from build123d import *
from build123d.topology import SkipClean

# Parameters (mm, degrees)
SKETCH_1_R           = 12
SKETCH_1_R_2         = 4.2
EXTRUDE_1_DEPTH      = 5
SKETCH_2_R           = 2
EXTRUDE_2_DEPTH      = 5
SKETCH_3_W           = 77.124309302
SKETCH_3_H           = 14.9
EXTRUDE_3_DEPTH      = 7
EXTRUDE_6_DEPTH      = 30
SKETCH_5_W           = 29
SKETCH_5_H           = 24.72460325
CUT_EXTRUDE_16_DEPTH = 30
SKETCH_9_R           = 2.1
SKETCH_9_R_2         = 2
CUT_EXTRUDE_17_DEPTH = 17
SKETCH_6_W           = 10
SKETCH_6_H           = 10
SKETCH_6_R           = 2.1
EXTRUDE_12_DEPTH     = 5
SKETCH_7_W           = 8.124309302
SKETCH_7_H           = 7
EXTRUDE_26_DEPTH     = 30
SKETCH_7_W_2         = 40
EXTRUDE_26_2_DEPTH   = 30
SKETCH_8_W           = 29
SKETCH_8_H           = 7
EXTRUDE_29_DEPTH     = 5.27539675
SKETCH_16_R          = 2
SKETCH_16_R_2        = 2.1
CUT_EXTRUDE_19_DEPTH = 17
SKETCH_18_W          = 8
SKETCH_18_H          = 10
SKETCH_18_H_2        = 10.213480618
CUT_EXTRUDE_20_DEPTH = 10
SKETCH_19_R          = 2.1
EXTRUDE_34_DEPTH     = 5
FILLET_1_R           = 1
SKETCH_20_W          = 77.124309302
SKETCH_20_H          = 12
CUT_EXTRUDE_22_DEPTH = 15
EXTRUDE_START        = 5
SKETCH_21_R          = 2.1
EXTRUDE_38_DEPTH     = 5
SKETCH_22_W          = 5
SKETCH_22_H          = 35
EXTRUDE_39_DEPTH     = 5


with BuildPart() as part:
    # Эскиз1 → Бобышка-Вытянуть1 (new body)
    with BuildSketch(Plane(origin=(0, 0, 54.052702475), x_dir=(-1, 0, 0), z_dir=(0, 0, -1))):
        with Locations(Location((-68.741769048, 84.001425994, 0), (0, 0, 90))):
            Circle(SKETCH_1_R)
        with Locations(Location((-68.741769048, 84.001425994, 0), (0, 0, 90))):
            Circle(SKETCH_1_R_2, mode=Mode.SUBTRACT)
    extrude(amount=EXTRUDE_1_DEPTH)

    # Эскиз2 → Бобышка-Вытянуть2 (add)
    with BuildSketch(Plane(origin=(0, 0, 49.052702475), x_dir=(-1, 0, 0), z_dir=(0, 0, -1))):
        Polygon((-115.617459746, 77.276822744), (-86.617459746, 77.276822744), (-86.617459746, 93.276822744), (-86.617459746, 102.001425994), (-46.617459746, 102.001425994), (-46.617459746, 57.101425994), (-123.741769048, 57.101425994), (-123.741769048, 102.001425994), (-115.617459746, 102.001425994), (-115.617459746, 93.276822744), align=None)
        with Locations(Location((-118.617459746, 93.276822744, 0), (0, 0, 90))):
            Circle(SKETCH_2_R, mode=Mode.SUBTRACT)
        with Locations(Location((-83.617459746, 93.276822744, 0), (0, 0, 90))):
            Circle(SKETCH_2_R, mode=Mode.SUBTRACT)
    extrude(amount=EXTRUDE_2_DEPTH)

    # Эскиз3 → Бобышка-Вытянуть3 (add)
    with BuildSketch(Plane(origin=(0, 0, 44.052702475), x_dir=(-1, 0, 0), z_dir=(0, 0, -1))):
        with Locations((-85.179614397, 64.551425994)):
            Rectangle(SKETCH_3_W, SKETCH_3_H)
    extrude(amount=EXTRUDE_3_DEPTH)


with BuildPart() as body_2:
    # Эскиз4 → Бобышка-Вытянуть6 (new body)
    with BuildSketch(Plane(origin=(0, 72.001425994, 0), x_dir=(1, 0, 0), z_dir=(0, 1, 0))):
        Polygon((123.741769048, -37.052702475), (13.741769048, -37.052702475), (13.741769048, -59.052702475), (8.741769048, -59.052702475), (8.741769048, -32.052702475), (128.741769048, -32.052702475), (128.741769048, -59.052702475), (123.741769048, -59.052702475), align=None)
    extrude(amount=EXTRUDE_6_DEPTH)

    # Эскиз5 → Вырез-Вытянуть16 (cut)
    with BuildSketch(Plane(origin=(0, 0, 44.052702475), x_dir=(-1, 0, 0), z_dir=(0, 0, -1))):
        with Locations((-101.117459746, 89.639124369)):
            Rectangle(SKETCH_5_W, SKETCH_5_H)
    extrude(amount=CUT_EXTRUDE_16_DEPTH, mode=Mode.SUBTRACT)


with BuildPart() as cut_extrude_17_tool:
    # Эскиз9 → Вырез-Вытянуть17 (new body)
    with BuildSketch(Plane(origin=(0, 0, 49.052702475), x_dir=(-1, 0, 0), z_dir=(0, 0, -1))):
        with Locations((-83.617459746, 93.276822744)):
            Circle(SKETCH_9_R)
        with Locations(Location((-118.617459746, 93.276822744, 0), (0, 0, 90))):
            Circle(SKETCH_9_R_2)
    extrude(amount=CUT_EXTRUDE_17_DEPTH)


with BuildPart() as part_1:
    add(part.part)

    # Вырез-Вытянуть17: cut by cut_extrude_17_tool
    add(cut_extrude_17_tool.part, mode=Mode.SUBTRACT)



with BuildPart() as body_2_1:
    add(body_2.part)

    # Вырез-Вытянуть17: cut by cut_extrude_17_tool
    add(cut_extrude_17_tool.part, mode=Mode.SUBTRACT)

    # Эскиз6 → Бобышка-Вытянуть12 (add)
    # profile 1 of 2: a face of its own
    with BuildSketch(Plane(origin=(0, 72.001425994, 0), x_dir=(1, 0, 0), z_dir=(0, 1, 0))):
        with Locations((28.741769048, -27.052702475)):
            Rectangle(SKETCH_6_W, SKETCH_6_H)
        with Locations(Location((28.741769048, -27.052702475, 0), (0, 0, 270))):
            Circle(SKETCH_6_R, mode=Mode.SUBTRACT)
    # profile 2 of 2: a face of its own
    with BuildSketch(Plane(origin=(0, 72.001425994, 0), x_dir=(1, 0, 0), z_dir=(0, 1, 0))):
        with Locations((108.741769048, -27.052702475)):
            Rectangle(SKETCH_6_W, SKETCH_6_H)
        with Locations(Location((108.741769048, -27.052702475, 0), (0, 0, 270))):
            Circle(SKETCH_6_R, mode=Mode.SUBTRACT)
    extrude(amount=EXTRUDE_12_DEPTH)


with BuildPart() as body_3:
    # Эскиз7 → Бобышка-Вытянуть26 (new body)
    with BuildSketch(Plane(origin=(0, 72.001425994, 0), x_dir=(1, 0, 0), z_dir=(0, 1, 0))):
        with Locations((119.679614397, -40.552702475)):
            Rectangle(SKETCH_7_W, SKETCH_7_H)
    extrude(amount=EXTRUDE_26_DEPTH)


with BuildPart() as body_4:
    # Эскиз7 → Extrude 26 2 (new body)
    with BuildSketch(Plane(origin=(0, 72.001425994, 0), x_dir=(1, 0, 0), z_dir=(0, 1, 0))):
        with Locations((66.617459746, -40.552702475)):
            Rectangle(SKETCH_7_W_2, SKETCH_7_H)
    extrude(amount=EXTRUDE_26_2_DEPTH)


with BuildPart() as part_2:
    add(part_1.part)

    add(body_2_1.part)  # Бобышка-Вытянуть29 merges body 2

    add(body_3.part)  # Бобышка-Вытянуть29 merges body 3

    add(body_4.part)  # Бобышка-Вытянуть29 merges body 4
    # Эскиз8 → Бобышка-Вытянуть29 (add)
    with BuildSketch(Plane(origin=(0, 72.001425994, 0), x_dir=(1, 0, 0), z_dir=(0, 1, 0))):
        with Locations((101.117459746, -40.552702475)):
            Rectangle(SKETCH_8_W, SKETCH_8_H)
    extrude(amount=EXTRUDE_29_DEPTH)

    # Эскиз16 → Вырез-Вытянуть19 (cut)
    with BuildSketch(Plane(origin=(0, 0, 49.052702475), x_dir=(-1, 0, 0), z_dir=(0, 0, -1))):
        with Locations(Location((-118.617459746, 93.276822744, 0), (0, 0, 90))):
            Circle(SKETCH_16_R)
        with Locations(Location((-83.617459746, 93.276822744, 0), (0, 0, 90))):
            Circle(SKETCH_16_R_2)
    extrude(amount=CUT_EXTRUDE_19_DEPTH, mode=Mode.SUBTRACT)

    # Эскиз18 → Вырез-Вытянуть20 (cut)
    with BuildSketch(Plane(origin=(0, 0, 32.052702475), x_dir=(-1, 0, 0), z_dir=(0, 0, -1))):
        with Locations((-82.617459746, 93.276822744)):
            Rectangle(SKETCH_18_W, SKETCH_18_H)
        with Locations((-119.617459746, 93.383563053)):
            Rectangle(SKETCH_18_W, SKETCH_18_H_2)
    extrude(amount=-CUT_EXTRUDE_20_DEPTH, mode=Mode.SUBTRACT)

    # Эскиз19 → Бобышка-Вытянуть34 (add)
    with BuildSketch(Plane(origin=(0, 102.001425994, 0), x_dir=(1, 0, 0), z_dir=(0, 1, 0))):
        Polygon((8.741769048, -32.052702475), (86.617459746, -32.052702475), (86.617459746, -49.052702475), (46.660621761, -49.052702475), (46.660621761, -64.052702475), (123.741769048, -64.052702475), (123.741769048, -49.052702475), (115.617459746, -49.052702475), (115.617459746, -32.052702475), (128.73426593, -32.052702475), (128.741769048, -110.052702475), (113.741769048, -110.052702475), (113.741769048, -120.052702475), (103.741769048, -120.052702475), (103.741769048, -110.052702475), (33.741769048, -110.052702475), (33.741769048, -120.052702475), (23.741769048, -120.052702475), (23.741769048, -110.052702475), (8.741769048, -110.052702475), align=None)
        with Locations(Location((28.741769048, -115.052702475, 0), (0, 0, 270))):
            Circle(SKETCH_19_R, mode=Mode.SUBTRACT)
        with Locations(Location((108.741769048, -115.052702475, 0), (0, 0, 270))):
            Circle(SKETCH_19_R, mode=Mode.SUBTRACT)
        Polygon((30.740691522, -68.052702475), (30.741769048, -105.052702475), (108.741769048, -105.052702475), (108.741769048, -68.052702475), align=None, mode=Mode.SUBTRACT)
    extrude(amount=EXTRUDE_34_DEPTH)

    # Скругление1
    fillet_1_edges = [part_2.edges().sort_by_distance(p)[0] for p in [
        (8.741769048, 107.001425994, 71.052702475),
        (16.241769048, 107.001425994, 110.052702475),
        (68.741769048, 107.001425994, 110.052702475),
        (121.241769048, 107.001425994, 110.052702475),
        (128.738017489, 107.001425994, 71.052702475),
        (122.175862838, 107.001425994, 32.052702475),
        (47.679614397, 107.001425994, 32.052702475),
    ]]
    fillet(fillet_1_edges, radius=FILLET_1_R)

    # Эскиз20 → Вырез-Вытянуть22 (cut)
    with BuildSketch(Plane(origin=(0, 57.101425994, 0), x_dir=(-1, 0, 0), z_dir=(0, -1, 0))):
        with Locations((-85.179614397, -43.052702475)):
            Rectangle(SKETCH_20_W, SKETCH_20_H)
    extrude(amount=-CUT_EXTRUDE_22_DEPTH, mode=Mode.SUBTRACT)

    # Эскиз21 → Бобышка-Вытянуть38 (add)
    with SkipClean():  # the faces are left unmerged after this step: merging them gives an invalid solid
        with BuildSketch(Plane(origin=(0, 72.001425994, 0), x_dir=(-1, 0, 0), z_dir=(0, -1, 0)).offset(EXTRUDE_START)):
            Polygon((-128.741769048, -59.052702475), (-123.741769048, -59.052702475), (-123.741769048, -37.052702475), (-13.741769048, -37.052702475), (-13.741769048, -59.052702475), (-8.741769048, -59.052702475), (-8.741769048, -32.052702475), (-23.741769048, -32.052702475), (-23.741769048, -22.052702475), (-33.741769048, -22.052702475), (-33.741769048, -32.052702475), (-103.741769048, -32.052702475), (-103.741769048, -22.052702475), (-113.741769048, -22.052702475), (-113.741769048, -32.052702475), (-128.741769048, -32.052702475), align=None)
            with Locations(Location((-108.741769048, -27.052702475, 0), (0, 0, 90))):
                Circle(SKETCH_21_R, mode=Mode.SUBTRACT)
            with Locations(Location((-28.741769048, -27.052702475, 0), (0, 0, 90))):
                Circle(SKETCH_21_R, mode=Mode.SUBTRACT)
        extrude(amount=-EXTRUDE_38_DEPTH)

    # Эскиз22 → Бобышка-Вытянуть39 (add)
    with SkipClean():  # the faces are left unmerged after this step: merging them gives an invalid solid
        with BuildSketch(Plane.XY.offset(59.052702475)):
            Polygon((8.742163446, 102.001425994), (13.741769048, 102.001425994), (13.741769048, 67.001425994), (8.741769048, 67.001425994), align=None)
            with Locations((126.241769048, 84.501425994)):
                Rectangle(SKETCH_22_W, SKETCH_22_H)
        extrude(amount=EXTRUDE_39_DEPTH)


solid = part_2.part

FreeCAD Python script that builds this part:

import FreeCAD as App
import Part
import Sketcher
from FreeCAD import Vector


def edges_at(feature, points):
    """Names of the edges that pass closest to the given points."""
    edges = feature.Shape.Edges
    near = lambda p: min(range(len(edges)), key=lambda i: edges[i].distToShape(Part.Vertex(*p))[0])
    return sorted({f"Edge{near(p) + 1}" for p in points})

doc = App.newDocument("Part")
body = doc.addObject("PartDesign::Body", "Body")

# Sketch on XY plane
sketch1 = doc.addObject("Sketcher::SketchObject", "Sketch")
body.addObject(sketch1)
sketch1.AttachmentSupport = (doc.XY_Plane, [""])
sketch1.MapMode = "FlatFace"
sketch1.AttachmentOffset = App.Placement(Vector(0, 0, 54.052702), App.Rotation())
sketch1.addGeometry(Part.Circle(Vector(68.7, 84, 0), Vector(0, 0, 1), 12), False)
sketch1.addGeometry(Part.Circle(Vector(68.7, 84, 0), Vector(0, 0, 1), 4.2), False)
sketch1.addConstraint(Sketcher.Constraint("Coincident", 1, 3, 0, 3))
sketch1.addConstraint(Sketcher.Constraint("Diameter", 0, 24.0))
sketch1.addConstraint(Sketcher.Constraint("Diameter", 1, 8.4))
sketch1.addConstraint(Sketcher.Constraint("DistanceX", -1, 1, 0, 3, 68.741769))
sketch1.addConstraint(Sketcher.Constraint("DistanceY", -1, 1, 0, 3, 84.001426))
pad1 = doc.addObject("PartDesign::Pad", "Pad")
body.addObject(pad1)
pad1.Profile = sketch1
pad1.Length = 5
pad1.Reversed = True

# Sketch on XY plane
sketch2 = doc.addObject("Sketcher::SketchObject", "Sketch001")
body.addObject(sketch2)
sketch2.AttachmentSupport = (doc.XY_Plane, [""])
sketch2.MapMode = "FlatFace"
sketch2.AttachmentOffset = App.Placement(Vector(0, 0, 49.052702), App.Rotation())
sketch2.addGeometry(Part.LineSegment(Vector(86.6, 77.3, 0), Vector(115.6, 77.3, 0)), False)
sketch2.addGeometry(Part.LineSegment(Vector(115.6, 77.3, 0), Vector(115.6, 102, 0)), False)
sketch2.addGeometry(Part.LineSegment(Vector(115.6, 102, 0), Vector(123.7, 102, 0)), False)
sketch2.addGeometry(Part.LineSegment(Vector(123.7, 102, 0), Vector(123.7, 57.1, 0)), False)
sketch2.addGeometry(Part.LineSegment(Vector(123.7, 57.1, 0), Vector(46.6, 57.1, 0)), False)
sketch2.addGeometry(Part.LineSegment(Vector(46.6, 57.1, 0), Vector(46.6, 102, 0)), False)
sketch2.addGeometry(Part.LineSegment(Vector(46.6, 102, 0), Vector(86.6, 102, 0)), False)
sketch2.addGeometry(Part.LineSegment(Vector(86.6, 102, 0), Vector(86.6, 77.3, 0)), False)
sketch2.addGeometry(Part.Circle(Vector(83.6, 93.3, 0), Vector(0, 0, 1), 2), False)
sketch2.addGeometry(Part.Circle(Vector(118.6, 93.3, 0), Vector(0, 0, 1), 2), False)
sketch2.addConstraint(Sketcher.Constraint("Coincident", 0, 2, 1, 1))
sketch2.addConstraint(Sketcher.Constraint("Coincident", 1, 2, 2, 1))
sketch2.addConstraint(Sketcher.Constraint("Coincident", 2, 2, 3, 1))
sketch2.addConstraint(Sketcher.Constraint("Coincident", 3, 2, 4, 1))
sketch2.addConstraint(Sketcher.Constraint("Coincident", 4, 2, 5, 1))
sketch2.addConstraint(Sketcher.Constraint("Coincident", 5, 2, 6, 1))
sketch2.addConstraint(Sketcher.Constraint("Coincident", 6, 2, 7, 1))
sketch2.addConstraint(Sketcher.Constraint("Coincident", 7, 2, 0, 1))
sketch2.addConstraint(Sketcher.Constraint("Horizontal", 0))
sketch2.addConstraint(Sketcher.Constraint("Vertical", 1))
sketch2.addConstraint(Sketcher.Constraint("Horizontal", 2))
sketch2.addConstraint(Sketcher.Constraint("Vertical", 3))
sketch2.addConstraint(Sketcher.Constraint("Horizontal", 4))
sketch2.addConstraint(Sketcher.Constraint("Vertical", 5))
sketch2.addConstraint(Sketcher.Constraint("Horizontal", 6))
sketch2.addConstraint(Sketcher.Constraint("Vertical", 7))
sketch2.addConstraint(Sketcher.Constraint("Equal", 8, 9))
sketch2.addConstraint(Sketcher.Constraint("Horizontal", 8, 3, 9, 3))
sketch2.addConstraint(Sketcher.Constraint("Horizontal", 2, 2, 5, 2))
sketch2.addConstraint(Sketcher.Constraint("Diameter", 8, 4.0))
sketch2.addConstraint(Sketcher.Constraint("DistanceX", 0, 1, 0, 2, 29.0))
sketch2.addConstraint(Sketcher.Constraint("DistanceX", 6, 1, 6, 2, 40.0))
sketch2.addConstraint(Sketcher.Constraint("DistanceY", 3, 2, 3, 1, 44.9))
sketch2.addConstraint(Sketcher.Constraint("DistanceX", 8, 3, 9, 3, 35.0))
sketch2.addConstraint(Sketcher.Constraint("DistanceX", 0, 2, 9, 3, 3.0))
sketch2.addConstraint(Sketcher.Constraint("DistanceY", 0, 2, 9, 3, 16.0))
sketch2.addConstraint(Sketcher.Constraint("DistanceX", 2, 1, 2, 2, 8.124309))
sketch2.addConstraint(Sketcher.Constraint("DistanceY", 1, 1, 1, 2, 24.724603))
sketch2.addConstraint(Sketcher.Constraint("DistanceX", -1, 1, 8, 3, 83.61746))
sketch2.addConstraint(Sketcher.Constraint("DistanceY", -1, 1, 8, 3, 93.276823))
pad2 = doc.addObject("PartDesign::Pad", "Pad001")
body.addObject(pad2)
pad2.Profile = sketch2
pad2.Length = 5
pad2.Reversed = True

# Sketch on XY plane
sketch3 = doc.addObject("Sketcher::SketchObject", "Sketch002")
body.addObject(sketch3)
sketch3.AttachmentSupport = (doc.XY_Plane, [""])
sketch3.MapMode = "FlatFace"
sketch3.AttachmentOffset = App.Placement(Vector(0, 0, 44.052702), App.Rotation())
sketch3.addGeometry(Part.LineSegment(Vector(124, 72, 0), Vector(124, 57, 0)), False)
sketch3.addGeometry(Part.LineSegment(Vector(124, 57, 0), Vector(47, 57, 0)), False)
sketch3.addGeometry(Part.LineSegment(Vector(47, 57, 0), Vector(47, 72, 0)), False)
sketch3.addGeometry(Part.LineSegment(Vector(47, 72, 0), Vector(124, 72, 0)), False)
sketch3.addConstraint(Sketcher.Constraint("Coincident", 0, 2, 1, 1))
sketch3.addConstraint(Sketcher.Constraint("Coincident", 1, 2, 2, 1))
sketch3.addConstraint(Sketcher.Constraint("Coincident", 2, 2, 3, 1))
sketch3.addConstraint(Sketcher.Constraint("Coincident", 3, 2, 0, 1))
sketch3.addConstraint(Sketcher.Constraint("Vertical", 0))
sketch3.addConstraint(Sketcher.Constraint("Horizontal", 1))
sketch3.addConstraint(Sketcher.Constraint("Vertical", 2))
sketch3.addConstraint(Sketcher.Constraint("Horizontal", 3))
sketch3.addConstraint(Sketcher.Constraint("DistanceY", 0, 2, 0, 1, 14.9))
sketch3.addConstraint(Sketcher.Constraint("DistanceX", 1, 2, 1, 1, 77.124309))
sketch3.addConstraint(Sketcher.Constraint("DistanceX", -1, 1, 0, 2, 123.741769))
sketch3.addConstraint(Sketcher.Constraint("DistanceY", -1, 1, 0, 2, 57.101426))
pad3 = doc.addObject("PartDesign::Pad", "Pad002")
body.addObject(pad3)
pad3.Profile = sketch3
pad3.Length = 7
pad3.Reversed = True
body2 = doc.addObject("PartDesign::Body", "Body001")

# Sketch on XZ plane
sketch4 = doc.addObject("Sketcher::SketchObject", "Sketch003")
body2.addObject(sketch4)
sketch4.AttachmentSupport = (doc.getObject("XZ_Plane001"), [""])
sketch4.MapMode = "FlatFace"
sketch4.AttachmentOffset = App.Placement(Vector(0, 0, -72.001426), App.Rotation())
sketch4.addGeometry(Part.LineSegment(Vector(14, 37, 0), Vector(124, 37, 0)), False)
sketch4.addGeometry(Part.LineSegment(Vector(124, 37, 0), Vector(124, 59, 0)), False)
sketch4.addGeometry(Part.LineSegment(Vector(124, 59, 0), Vector(129, 59, 0)), False)
sketch4.addGeometry(Part.LineSegment(Vector(129, 59, 0), Vector(129, 32, 0)), False)
sketch4.addGeometry(Part.LineSegment(Vector(129, 32, 0), Vector(9, 32, 0)), False)
sketch4.addGeometry(Part.LineSegment(Vector(9, 32, 0), Vector(9, 59, 0)), False)
sketch4.addGeometry(Part.LineSegment(Vector(9, 59, 0), Vector(14, 59, 0)), False)
sketch4.addGeometry(Part.LineSegment(Vector(14, 59, 0), Vector(14, 37, 0)), False)
sketch4.addConstraint(Sketcher.Constraint("Coincident", 0, 2, 1, 1))
sketch4.addConstraint(Sketcher.Constraint("Coincident", 1, 2, 2, 1))
sketch4.addConstraint(Sketcher.Constraint("Coincident", 2, 2, 3, 1))
sketch4.addConstraint(Sketcher.Constraint("Coincident", 3, 2, 4, 1))
sketch4.addConstraint(Sketcher.Constraint("Coincident", 4, 2, 5, 1))
sketch4.addConstraint(Sketcher.Constraint("Coincident", 5, 2, 6, 1))
sketch4.addConstraint(Sketcher.Constraint("Coincident", 6, 2, 7, 1))
sketch4.addConstraint(Sketcher.Constraint("Coincident", 7, 2, 0, 1))
sketch4.addConstraint(Sketcher.Constraint("Horizontal", 0))
sketch4.addConstraint(Sketcher.Constraint("Vertical", 1))
sketch4.addConstraint(Sketcher.Constraint("Horizontal", 2))
sketch4.addConstraint(Sketcher.Constraint("Vertical", 3))
sketch4.addConstraint(Sketcher.Constraint("Horizontal", 4))
sketch4.addConstraint(Sketcher.Constraint("Vertical", 5))
sketch4.addConstraint(Sketcher.Constraint("Horizontal", 6))
sketch4.addConstraint(Sketcher.Constraint("Vertical", 7))
sketch4.addConstraint(Sketcher.Constraint("Horizontal", 2, 2, 5, 2))
sketch4.addConstraint(Sketcher.Constraint("Equal", 2, 6))
sketch4.addConstraint(Sketcher.Constraint("DistanceX", 0, 1, 0, 2, 110.0))
sketch4.addConstraint(Sketcher.Constraint("DistanceX", 2, 1, 2, 2, 5.0))
sketch4.addConstraint(Sketcher.Constraint("DistanceY", 1, 1, 1, 2, 22.0))
sketch4.addConstraint(Sketcher.Constraint("DistanceY", 3, 2, 3, 1, 27.0))
sketch4.addConstraint(Sketcher.Constraint("DistanceX", -1, 1, 0, 2, 123.741769))
sketch4.addConstraint(Sketcher.Constraint("DistanceY", -1, 1, 0, 2, 37.052702))
pad4 = doc.addObject("PartDesign::Pad", "Pad003")
body2.addObject(pad4)
pad4.Profile = sketch4
pad4.Length = 30
pad4.Reversed = True

# Sketch on XY plane
sketch5 = doc.addObject("Sketcher::SketchObject", "Sketch004")
body2.addObject(sketch5)
sketch5.AttachmentSupport = (doc.getObject("XY_Plane001"), [""])
sketch5.MapMode = "FlatFace"
sketch5.AttachmentOffset = App.Placement(Vector(0, 0, 44.052702), App.Rotation())
sketch5.addGeometry(Part.LineSegment(Vector(116, 102, 0), Vector(116, 77, 0)), False)
sketch5.addGeometry(Part.LineSegment(Vector(116, 77, 0), Vector(87, 77, 0)), False)
sketch5.addGeometry(Part.LineSegment(Vector(87, 77, 0), Vector(87, 102, 0)), False)
sketch5.addGeometry(Part.LineSegment(Vector(87, 102, 0), Vector(116, 102, 0)), False)
sketch5.addConstraint(Sketcher.Constraint("Coincident", 0, 2, 1, 1))
sketch5.addConstraint(Sketcher.Constraint("Coincident", 1, 2, 2, 1))
sketch5.addConstraint(Sketcher.Constraint("Coincident", 2, 2, 3, 1))
sketch5.addConstraint(Sketcher.Constraint("Coincident", 3, 2, 0, 1))
sketch5.addConstraint(Sketcher.Constraint("Vertical", 0))
sketch5.addConstraint(Sketcher.Constraint("Horizontal", 1))
sketch5.addConstraint(Sketcher.Constraint("Vertical", 2))
sketch5.addConstraint(Sketcher.Constraint("Horizontal", 3))
sketch5.addConstraint(Sketcher.Constraint("DistanceX", 1, 2, 1, 1, 29.0))
sketch5.addConstraint(Sketcher.Constraint("DistanceY", 0, 2, 0, 1, 24.724603))
sketch5.addConstraint(Sketcher.Constraint("DistanceX", -1, 1, 0, 2, 115.61746))
sketch5.addConstraint(Sketcher.Constraint("DistanceY", -1, 1, 0, 2, 77.276823))
pocket1 = doc.addObject("PartDesign::Pocket", "Pocket")
body2.addObject(pocket1)
pocket1.Profile = sketch5
pocket1.Length = 30
body3 = doc.addObject("PartDesign::Body", "Body002")
body3.AllowCompound = True

# Sketch on XY plane
sketch6 = doc.addObject("Sketcher::SketchObject", "Sketch005")
body3.addObject(sketch6)
sketch6.AttachmentSupport = (doc.getObject("XY_Plane002"), [""])
sketch6.MapMode = "FlatFace"
sketch6.AttachmentOffset = App.Placement(Vector(0, 0, 49.052702), App.Rotation())
sketch6.addGeometry(Part.Circle(Vector(83.6, 93.3, 0), Vector(0, 0, 1), 2.1), False)
sketch6.addGeometry(Part.Circle(Vector(118.6, 93.3, 0), Vector(0, 0, 1), 2), False)
sketch6.addConstraint(Sketcher.Constraint("Horizontal", 0, 3, 1, 3))
sketch6.addConstraint(Sketcher.Constraint("Diameter", 1, 4.0))
sketch6.addConstraint(Sketcher.Constraint("Diameter", 0, 4.2))
sketch6.addConstraint(Sketcher.Constraint("DistanceX", 0, 3, 1, 3, 35.0))
sketch6.addConstraint(Sketcher.Constraint("DistanceX", -1, 1, 0, 3, 83.61746))
sketch6.addConstraint(Sketcher.Constraint("DistanceY", -1, 1, 0, 3, 93.276823))
pad5 = doc.addObject("PartDesign::Pad", "Pad004")
body3.addObject(pad5)
pad5.Profile = sketch6
pad5.Length = 17
pad5.Reversed = True
doc.recompute()

body4 = doc.addObject("PartDesign::Body", "Body003")
body4.BaseFeature = body3
boolean = doc.addObject("PartDesign::Boolean", "Boolean")
body.addObject(boolean)
boolean.Type = "Cut"
boolean.addObjects([body4])
doc.recompute()

boolean2 = doc.addObject("PartDesign::Boolean", "Boolean001")
body2.addObject(boolean2)
boolean2.Type = "Cut"
boolean2.addObjects([body3])

# Sketch on XZ plane
sketch7 = doc.addObject("Sketcher::SketchObject", "Sketch006")
body2.addObject(sketch7)
sketch7.AttachmentSupport = (doc.getObject("XZ_Plane001"), [""])
sketch7.MapMode = "FlatFace"
sketch7.AttachmentOffset = App.Placement(Vector(0, 0, -72.001426), App.Rotation())
sketch7.addGeometry(Part.LineSegment(Vector(23.7, 22.1, 0), Vector(23.7, 32.1, 0)), False)
sketch7.addGeometry(Part.LineSegment(Vector(23.7, 32.1, 0), Vector(33.7, 32.1, 0)), False)
sketch7.addGeometry(Part.LineSegment(Vector(33.7, 32.1, 0), Vector(33.7, 22.1, 0)), False)
sketch7.addGeometry(Part.LineSegment(Vector(33.7, 22.1, 0), Vector(23.7, 22.1, 0)), False)
sketch7.addGeometry(Part.Circle(Vector(28.7, 27.1, 0), Vector(0, 0, 1), 2.1), False)
sketch7.addGeometry(Part.LineSegment(Vector(103.7, 22.1, 0), Vector(103.7, 32.1, 0)), False)
sketch7.addGeometry(Part.LineSegment(Vector(103.7, 32.1, 0), Vector(113.7, 32.1, 0)), False)
sketch7.addGeometry(Part.LineSegment(Vector(113.7, 32.1, 0), Vector(113.7, 22.1, 0)), False)
sketch7.addGeometry(Part.LineSegment(Vector(113.7, 22.1, 0), Vector(103.7, 22.1, 0)), False)
sketch7.addGeometry(Part.Circle(Vector(108.7, 27.1, 0), Vector(0, 0, 1), 2.1), False)
sketch7.addConstraint(Sketcher.Constraint("Coincident", 0, 2, 1, 1))
sketch7.addConstraint(Sketcher.Constraint("Coincident", 1, 2, 2, 1))
sketch7.addConstraint(Sketcher.Constraint("Coincident", 2, 2, 3, 1))
sketch7.addConstraint(Sketcher.Constraint("Coincident", 3, 2, 0, 1))
sketch7.addConstraint(Sketcher.Constraint("Coincident", 5, 2, 6, 1))
sketch7.addConstraint(Sketcher.Constraint("Coincident", 6, 2, 7, 1))
sketch7.addConstraint(Sketcher.Constraint("Coincident", 7, 2, 8, 1))
sketch7.addConstraint(Sketcher.Constraint("Coincident", 8, 2, 5, 1))
sketch7.addConstraint(Sketcher.Constraint("Vertical", 0))
sketch7.addConstraint(Sketcher.Constraint("Horizontal", 1))
sketch7.addConstraint(Sketcher.Constraint("Vertical", 2))
sketch7.addConstraint(Sketcher.Constraint("Horizontal", 3))
sketch7.addConstraint(Sketcher.Constraint("Vertical", 5))
sketch7.addConstraint(Sketcher.Constraint("Horizontal", 6))
sketch7.addConstraint(Sketcher.Constraint("Vertical", 7))
sketch7.addConstraint(Sketcher.Constraint("Horizontal", 8))
sketch7.addConstraint(Sketcher.Constraint("Equal", 4, 9))
sketch7.addConstraint(Sketcher.Constraint("Horizontal", 4, 3, 9, 3))
sketch7.addConstraint(Sketcher.Constraint("Horizontal", 1, 2, 5, 2))
sketch7.addConstraint(Sketcher.Constraint("Horizontal", 3, 2, 7, 2))
sketch7.addConstraint(Sketcher.Constraint("Equal", 3, 6))
sketch7.addConstraint(Sketcher.Constraint("Equal", 8, 0))
sketch7.addConstraint(Sketcher.Constraint("Diameter", 4, 4.2))
sketch7.addConstraint(Sketcher.Constraint("DistanceX", 1, 1, 1, 2, 10.0))
sketch7.addConstraint(Sketcher.Constraint("DistanceX", 4, 3, 9, 3, 80.0))
sketch7.addConstraint(Sketcher.Constraint("DistanceX", 0, 2, 4, 3, 5.0))
sketch7.addConstraint(Sketcher.Constraint("DistanceY", 4, 3, 0, 2, 5.0))
sketch7.addConstraint(Sketcher.Constraint("DistanceX", 5, 2, 9, 3, 5.0))
sketch7.addConstraint(Sketcher.Constraint("DistanceX", -1, 1, 4, 3, 28.741769))
sketch7.addConstraint(Sketcher.Constraint("DistanceY", -1, 1, 4, 3, 27.052702))
pad6 = doc.addObject("PartDesign::Pad", "Pad005")
body2.addObject(pad6)
pad6.Profile = sketch7
pad6.Length = 5
pad6.Reversed = True
body5 = doc.addObject("PartDesign::Body", "Body004")

# Sketch on XZ plane
sketch8 = doc.addObject("Sketcher::SketchObject", "Sketch007")
body5.addObject(sketch8)
sketch8.AttachmentSupport = (doc.getObject("XZ_Plane004"), [""])
sketch8.MapMode = "FlatFace"
sketch8.AttachmentOffset = App.Placement(Vector(0, 0, -72.001426), App.Rotation())
sketch8.addGeometry(Part.LineSegment(Vector(116, 37, 0), Vector(116, 44, 0)), False)
sketch8.addGeometry(Part.LineSegment(Vector(116, 44, 0), Vector(124, 44, 0)), False)
sketch8.addGeometry(Part.LineSegment(Vector(124, 44, 0), Vector(124, 37, 0)), False)
sketch8.addGeometry(Part.LineSegment(Vector(124, 37, 0), Vector(116, 37, 0)), False)
sketch8.addConstraint(Sketcher.Constraint("Coincident", 0, 2, 1, 1))
sketch8.addConstraint(Sketcher.Constraint("Coincident", 1, 2, 2, 1))
sketch8.addConstraint(Sketcher.Constraint("Coincident", 2, 2, 3, 1))
sketch8.addConstraint(Sketcher.Constraint("Coincident", 3, 2, 0, 1))
sketch8.addConstraint(Sketcher.Constraint("Vertical", 0))
sketch8.addConstraint(Sketcher.Constraint("Horizontal", 1))
sketch8.addConstraint(Sketcher.Constraint("Vertical", 2))
sketch8.addConstraint(Sketcher.Constraint("Horizontal", 3))
sketch8.addConstraint(Sketcher.Constraint("DistanceY", 0, 1, 0, 2, 7.0))
sketch8.addConstraint(Sketcher.Constraint("DistanceX", 1, 1, 1, 2, 8.124309))
sketch8.addConstraint(Sketcher.Constraint("DistanceX", -1, 1, 0, 2, 115.61746))
sketch8.addConstraint(Sketcher.Constraint("DistanceY", -1, 1, 0, 2, 44.052702))
pad7 = doc.addObject("PartDesign::Pad", "Pad006")
body5.addObject(pad7)
pad7.Profile = sketch8
pad7.Length = 30
pad7.Reversed = True
body6 = doc.addObject("PartDesign::Body", "Body005")

# Sketch on XZ plane
sketch9 = doc.addObject("Sketcher::SketchObject", "Sketch008")
body6.addObject(sketch9)
sketch9.AttachmentSupport = (doc.getObject("XZ_Plane005"), [""])
sketch9.MapMode = "FlatFace"
sketch9.AttachmentOffset = App.Placement(Vector(0, 0, -72.001426), App.Rotation())
sketch9.addGeometry(Part.LineSegment(Vector(47, 37, 0), Vector(47, 44, 0)), False)
sketch9.addGeometry(Part.LineSegment(Vector(47, 44, 0), Vector(87, 44, 0)), False)
sketch9.addGeometry(Part.LineSegment(Vector(87, 44, 0), Vector(87, 37, 0)), False)
sketch9.addGeometry(Part.LineSegment(Vector(87, 37, 0), Vector(47, 37, 0)), False)
sketch9.addConstraint(Sketcher.Constraint("Coincident", 0, 2, 1, 1))
sketch9.addConstraint(Sketcher.Constraint("Coincident", 1, 2, 2, 1))
sketch9.addConstraint(Sketcher.Constraint("Coincident", 2, 2, 3, 1))
sketch9.addConstraint(Sketcher.Constraint("Coincident", 3, 2, 0, 1))
sketch9.addConstraint(Sketcher.Constraint("Vertical", 0))
sketch9.addConstraint(Sketcher.Constraint("Horizontal", 1))
sketch9.addConstraint(Sketcher.Constraint("Vertical", 2))
sketch9.addConstraint(Sketcher.Constraint("Horizontal", 3))
sketch9.addConstraint(Sketcher.Constraint("DistanceX", 1, 1, 1, 2, 40.0))
sketch9.addConstraint(Sketcher.Constraint("DistanceY", 0, 1, 0, 2, 7.0))
sketch9.addConstraint(Sketcher.Constraint("DistanceX", -1, 1, 0, 2, 46.61746))
sketch9.addConstraint(Sketcher.Constraint("DistanceY", -1, 1, 0, 2, 44.052702))
pad8 = doc.addObject("PartDesign::Pad", "Pad007")
body6.addObject(pad8)
pad8.Profile = sketch9
pad8.Length = 30
pad8.Reversed = True
doc.recompute()

boolean3 = doc.addObject("PartDesign::Boolean", "Boolean002")
body.addObject(boolean3)
boolean3.Type = "Fuse"
boolean3.addObjects([body2])
doc.recompute()

boolean4 = doc.addObject("PartDesign::Boolean", "Boolean003")
body.addObject(boolean4)
boolean4.Type = "Fuse"
boolean4.addObjects([body5])
doc.recompute()

boolean5 = doc.addObject("PartDesign::Boolean", "Boolean004")
body.addObject(boolean5)
boolean5.Type = "Fuse"
boolean5.addObjects([body6])

# Sketch on XZ plane
sketch10 = doc.addObject("Sketcher::SketchObject", "Sketch009")
body.addObject(sketch10)
sketch10.AttachmentSupport = (doc.XZ_Plane, [""])
sketch10.MapMode = "FlatFace"
sketch10.AttachmentOffset = App.Placement(Vector(0, 0, -72.001426), App.Rotation())
sketch10.addGeometry(Part.LineSegment(Vector(87, 37, 0), Vector(87, 44, 0)), False)
sketch10.addGeometry(Part.LineSegment(Vector(87, 44, 0), Vector(116, 44, 0)), False)
sketch10.addGeometry(Part.LineSegment(Vector(116, 44, 0), Vector(116, 37, 0)), False)
sketch10.addGeometry(Part.LineSegment(Vector(116, 37, 0), Vector(87, 37, 0)), False)
sketch10.addConstraint(Sketcher.Constraint("Coincident", 0, 2, 1, 1))
sketch10.addConstraint(Sketcher.Constraint("Coincident", 1, 2, 2, 1))
sketch10.addConstraint(Sketcher.Constraint("Coincident", 2, 2, 3, 1))
sketch10.addConstraint(Sketcher.Constraint("Coincident", 3, 2, 0, 1))
sketch10.addConstraint(Sketcher.Constraint("Vertical", 0))
sketch10.addConstraint(Sketcher.Constraint("Horizontal", 1))
sketch10.addConstraint(Sketcher.Constraint("Vertical", 2))
sketch10.addConstraint(Sketcher.Constraint("Horizontal", 3))
sketch10.addConstraint(Sketcher.Constraint("DistanceX", 1, 1, 1, 2, 29.0))
sketch10.addConstraint(Sketcher.Constraint("DistanceY", 0, 1, 0, 2, 7.0))
sketch10.addConstraint(Sketcher.Constraint("DistanceX", -1, 1, 0, 2, 86.61746))
sketch10.addConstraint(Sketcher.Constraint("DistanceY", -1, 1, 0, 2, 44.052702))
pad9 = doc.addObject("PartDesign::Pad", "Pad008")
body.addObject(pad9)
pad9.Profile = sketch10
pad9.Length = 5.275397
pad9.Reversed = True

# Sketch on XY plane
sketch11 = doc.addObject("Sketcher::SketchObject", "Sketch010")
body.addObject(sketch11)
sketch11.AttachmentSupport = (doc.XY_Plane, [""])
sketch11.MapMode = "FlatFace"
sketch11.AttachmentOffset = App.Placement(Vector(0, 0, 49.052702), App.Rotation())
sketch11.addGeometry(Part.Circle(Vector(118.6, 93.3, 0), Vector(0, 0, 1), 2), False)
sketch11.addGeometry(Part.Circle(Vector(83.6, 93.3, 0), Vector(0, 0, 1), 2.1), False)
sketch11.addConstraint(Sketcher.Constraint("Horizontal", 0, 3, 1, 3))
sketch11.addConstraint(Sketcher.Constraint("Diameter", 0, 4.0))
sketch11.addConstraint(Sketcher.Constraint("Diameter", 1, 4.2))
sketch11.addConstraint(Sketcher.Constraint("DistanceX", 1, 3, 0, 3, 35.0))
sketch11.addConstraint(Sketcher.Constraint("DistanceX", -1, 1, 0, 3, 118.61746))
sketch11.addConstraint(Sketcher.Constraint("DistanceY", -1, 1, 0, 3, 93.276823))
pocket2 = doc.addObject("PartDesign::Pocket", "Pocket001")
body.addObject(pocket2)
pocket2.Profile = sketch11
pocket2.Length = 17

# Sketch on XY plane
sketch12 = doc.addObject("Sketcher::SketchObject", "Sketch011")
body.addObject(sketch12)
sketch12.AttachmentSupport = (doc.XY_Plane, [""])
sketch12.MapMode = "FlatFace"
sketch12.AttachmentOffset = App.Placement(Vector(0, 0, 32.052702), App.Rotation())
sketch12.addGeometry(Part.LineSegment(Vector(87, 98, 0), Vector(87, 88, 0)), False)
sketch12.addGeometry(Part.LineSegment(Vector(87, 88, 0), Vector(79, 88, 0)), False)
sketch12.addGeometry(Part.LineSegment(Vector(79, 88, 0), Vector(79, 98, 0)), False)
sketch12.addGeometry(Part.LineSegment(Vector(79, 98, 0), Vector(87, 98, 0)), False)
sketch12.addGeometry(Part.LineSegment(Vector(124, 98, 0), Vector(124, 88, 0)), False)
sketch12.addGeometry(Part.LineSegment(Vector(124, 88, 0), Vector(116, 88, 0)), False)
sketch12.addGeometry(Part.LineSegment(Vector(116, 88, 0), Vector(116, 98, 0)), False)
sketch12.addGeometry(Part.LineSegment(Vector(116, 98, 0), Vector(124, 98, 0)), False)
sketch12.addConstraint(Sketcher.Constraint("Coincident", 0, 2, 1, 1))
sketch12.addConstraint(Sketcher.Constraint("Coincident", 1, 2, 2, 1))
sketch12.addConstraint(Sketcher.Constraint("Coincident", 2, 2, 3, 1))
sketch12.addConstraint(Sketcher.Constraint("Coincident", 3, 2, 0, 1))
sketch12.addConstraint(Sketcher.Constraint("Coincident", 4, 2, 5, 1))
sketch12.addConstraint(Sketcher.Constraint("Coincident", 5, 2, 6, 1))
sketch12.addConstraint(Sketcher.Constraint("Coincident", 6, 2, 7, 1))
sketch12.addConstraint(Sketcher.Constraint("Coincident", 7, 2, 4, 1))
sketch12.addConstraint(Sketcher.Constraint("Vertical", 0))
sketch12.addConstraint(Sketcher.Constraint("Horizontal", 1))
sketch12.addConstraint(Sketcher.Constraint("Vertical", 2))
sketch12.addConstraint(Sketcher.Constraint("Horizontal", 3))
sketch12.addConstraint(Sketcher.Constraint("Vertical", 4))
sketch12.addConstraint(Sketcher.Constraint("Horizontal", 5))
sketch12.addConstraint(Sketcher.Constraint("Vertical", 6))
sketch12.addConstraint(Sketcher.Constraint("Horizontal", 7))
sketch12.addConstraint(Sketcher.Constraint("Horizontal", 1, 2, 4, 2))
sketch12.addConstraint(Sketcher.Constraint("Equal", 3, 5))
sketch12.addConstraint(Sketcher.Constraint("DistanceX", 1, 2, 1, 1, 8.0))
sketch12.addConstraint(Sketcher.Constraint("DistanceY", 0, 2, 0, 1, 10.0))
sketch12.addConstraint(Sketcher.Constraint("DistanceX", 0, 2, 4, 2, 37.0))
sketch12.addConstraint(Sketcher.Constraint("DistanceY", 4, 2, 4, 1, 10.213481))
sketch12.addConstraint(Sketcher.Constraint("DistanceX", -1, 1, 0, 2, 86.61746))
sketch12.addConstraint(Sketcher.Constraint("DistanceY", -1, 1, 0, 2, 88.276823))
pocket3 = doc.addObject("PartDesign::Pocket", "Pocket002")
body.addObject(pocket3)
pocket3.Profile = sketch12
pocket3.Length = 10
pocket3.Reversed = True

# Sketch on XZ plane
sketch13 = doc.addObject("Sketcher::SketchObject", "Sketch012")
body.addObject(sketch13)
sketch13.AttachmentSupport = (doc.XZ_Plane, [""])
sketch13.MapMode = "FlatFace"
sketch13.AttachmentOffset = App.Placement(Vector(0, 0, -102.001426), App.Rotation())
sketch13.addGeometry(Part.LineSegment(Vector(86.6, 32.1, 0), Vector(8.7, 32.1, 0)), False)
sketch13.addGeometry(Part.LineSegment(Vector(8.7, 32.1, 0), Vector(8.7, 110.1, 0)), False)
sketch13.addGeometry(Part.LineSegment(Vector(8.7, 110.1, 0), Vector(23.7, 110.1, 0)), False)
sketch13.addGeometry(Part.LineSegment(Vector(23.7, 110.1, 0), Vector(23.7, 120.1, 0)), False)
sketch13.addGeometry(Part.LineSegment(Vector(23.7, 120.1, 0), Vector(33.7, 120.1, 0)), False)
sketch13.addGeometry(Part.LineSegment(Vector(33.7, 120.1, 0), Vector(33.7, 110.1, 0)), False)
sketch13.addGeometry(Part.LineSegment(Vector(33.7, 110.1, 0), Vector(103.7, 110.1, 0)), False)
sketch13.addGeometry(Part.LineSegment(Vector(103.7, 110.1, 0), Vector(103.7, 120.1, 0)), False)
sketch13.addGeometry(Part.LineSegment(Vector(103.7, 120.1, 0), Vector(113.7, 120.1, 0)), False)
sketch13.addGeometry(Part.LineSegment(Vector(113.7, 120.1, 0), Vector(113.7, 110.1, 0)), False)
sketch13.addGeometry(Part.LineSegment(Vector(113.7, 110.1, 0), Vector(128.7, 110.1, 0)), False)
sketch13.addGeometry(Part.LineSegment(Vector(128.7, 110.1, 0), Vector(128.7, 32.1, 0)), False)
sketch13.addGeometry(Part.LineSegment(Vector(128.7, 32.1, 0), Vector(115.6, 32.1, 0)), False)
sketch13.addGeometry(Part.LineSegment(Vector(115.6, 32.1, 0), Vector(115.6, 49.1, 0)), False)
sketch13.addGeometry(Part.LineSegment(Vector(115.6, 49.1, 0), Vector(123.7, 49.1, 0)), False)
sketch13.addGeometry(Part.LineSegment(Vector(123.7, 49.1, 0), Vector(123.7, 64.1, 0)), False)
sketch13.addGeometry(Part.LineSegment(Vector(123.7, 64.1, 0), Vector(46.7, 64.1, 0)), False)
sketch13.addGeometry(Part.LineSegment(Vector(46.7, 64.1, 0), Vector(46.7, 49.1, 0)), False)
sketch13.addGeometry(Part.LineSegment(Vector(46.7, 49.1, 0), Vector(86.6, 49.1, 0)), False)
sketch13.addGeometry(Part.LineSegment(Vector(86.6, 49.1, 0), Vector(86.6, 32.1, 0)), False)
sketch13.addGeometry(Part.Circle(Vector(108.7, 115.1, 0), Vector(0, 0, 1), 2.1), False)
sketch13.addGeometry(Part.Circle(Vector(28.7, 115.1, 0), Vector(0, 0, 1), 2.1), False)
sketch13.addGeometry(Part.LineSegment(Vector(30.7, 68.1, 0), Vector(108.7, 68.1, 0)), False)
sketch13.addGeometry(Part.LineSegment(Vector(108.7, 68.1, 0), Vector(108.7, 105.1, 0)), False)
sketch13.addGeometry(Part.LineSegment(Vector(108.7, 105.1, 0), Vector(30.7, 105.1, 0)), False)
sketch13.addGeometry(Part.LineSegment(Vector(30.7, 105.1, 0), Vector(30.7, 68.1, 0)), False)
sketch13.addConstraint(Sketcher.Constraint("Coincident", 0, 2, 1, 1))
sketch13.addConstraint(Sketcher.Constraint("Coincident", 1, 2, 2, 1))
sketch13.addConstraint(Sketcher.Constraint("Coincident", 2, 2, 3, 1))
sketch13.addConstraint(Sketcher.Constraint("Coincident", 3, 2, 4, 1))
sketch13.addConstraint(Sketcher.Constraint("Coincident", 4, 2, 5, 1))
sketch13.addConstraint(Sketcher.Constraint("Coincident", 5, 2, 6, 1))
sketch13.addConstraint(Sketcher.Constraint("Coincident", 6, 2, 7, 1))
sketch13.addConstraint(Sketcher.Constraint("Coincident", 7, 2, 8, 1))
sketch13.addConstraint(Sketcher.Constraint("Coincident", 8, 2, 9, 1))
sketch13.addConstraint(Sketcher.Constraint("Coincident", 9, 2, 10, 1))
sketch13.addConstraint(Sketcher.Constraint("Coincident", 10, 2, 11, 1))
sketch13.addConstraint(Sketcher.Constraint("Coincident", 11, 2, 12, 1))
sketch13.addConstraint(Sketcher.Constraint("Coincident", 12, 2, 13, 1))
sketch13.addConstraint(Sketcher.Constraint("Coincident", 13, 2, 14, 1))
sketch13.addConstraint(Sketcher.Constraint("Coincident", 14, 2, 15, 1))
sketch13.addConstraint(Sketcher.Constraint("Coincident", 15, 2, 16, 1))
sketch13.addConstraint(Sketcher.Constraint("Coincident", 16, 2, 17, 1))
sketch13.addConstraint(Sketcher.Constraint("Coincident", 17, 2, 18, 1))
sketch13.addConstraint(Sketcher.Constraint("Coincident", 18, 2, 19, 1))
sketch13.addConstraint(Sketcher.Constraint("Coincident", 19, 2, 0, 1))
sketch13.addConstraint(Sketcher.Constraint("Coincident", 22, 2, 23, 1))
sketch13.addConstraint(Sketcher.Constraint("Coincident", 23, 2, 24, 1))
sketch13.addConstraint(Sketcher.Constraint("Coincident", 24, 2, 25, 1))
sketch13.addConstraint(Sketcher.Constraint("Coincident", 25, 2, 22, 1))
sketch13.addConstraint(Sketcher.Constraint("Horizontal", 0))
sketch13.addConstraint(Sketcher.Constraint("Vertical", 1))
sketch13.addConstraint(Sketcher.Constraint("Horizontal", 2))
sketch13.addConstraint(Sketcher.Constraint("Vertical", 3))
sketch13.addConstraint(Sketcher.Constraint("Horizontal", 4))
sketch13.addConstraint(Sketcher.Constraint("Vertical", 5))
sketch13.addConstraint(Sketcher.Constraint("Horizontal", 6))
sketch13.addConstraint(Sketcher.Constraint("Vertical", 7))
sketch13.addConstraint(Sketcher.Constraint("Horizontal", 8))
sketch13.addConstraint(Sketcher.Constraint("Vertical", 9))
sketch13.addConstraint(Sketcher.Constraint("Horizontal", 10))
sketch13.addConstraint(Sketcher.Constraint("Horizontal", 12))
sketch13.addConstraint(Sketcher.Constraint("Vertical", 13))
sketch13.addConstraint(Sketcher.Constraint("Horizontal", 14))
sketch13.addConstraint(Sketcher.Constraint("Vertical", 15))
sketch13.addConstraint(Sketcher.Constraint("Horizontal", 16))
sketch13.addConstraint(Sketcher.Constraint("Vertical", 17))
sketch13.addConstraint(Sketcher.Constraint("Horizontal", 18))
sketch13.addConstraint(Sketcher.Constraint("Vertical", 19))
sketch13.addConstraint(Sketcher.Constraint("Horizontal", 22))
sketch13.addConstraint(Sketcher.Constraint("Vertical", 23))
sketch13.addConstraint(Sketcher.Constraint("Horizontal", 24))
sketch13.addConstraint(Sketcher.Constraint("Equal", 20, 21))
sketch13.addConstraint(Sketcher.Constraint("Horizontal", 20, 3, 21, 3))
sketch13.addConstraint(Sketcher.Constraint("Horizontal", 2, 2, 5, 2))
sketch13.addConstraint(Sketcher.Constraint("Horizontal", 4, 2, 7, 2))
sketch13.addConstraint(Sketcher.Constraint("Horizontal", 6, 2, 9, 2))
sketch13.addConstraint(Sketcher.Constraint("Horizontal", 0, 2, 11, 2))
sketch13.addConstraint(Sketcher.Constraint("Horizontal", 14, 2, 17, 2))
sketch13.addConstraint(Sketcher.Constraint("Vertical", 20, 3, 22, 2))
sketch13.addConstraint(Sketcher.Constraint("Equal", 4, 8))
sketch13.addConstraint(Sketcher.Constraint("Equal", 2, 10))
sketch13.addConstraint(Sketcher.Constraint("Equal", 24, 1))
sketch13.addConstraint(Sketcher.Constraint("Equal", 8, 3))
sketch13.addConstraint(Sketcher.Constraint("Equal", 10, 15))
sketch13.addConstraint(Sketcher.Constraint("Diameter", 20, 4.2))
sketch13.addConstraint(Sketcher.Constraint("DistanceX", 2, 1, 2, 2, 15.0))
sketch13.addConstraint(Sketcher.Constraint("DistanceX", 4, 1, 4, 2, 10.0))
sketch13.addConstraint(Sketcher.Constraint("DistanceX", 6, 1, 6, 2, 70.0))
sketch13.addConstraint(Sketcher.Constraint("DistanceX", 24, 2, 24, 1, 78.0))
sketch13.addConstraint(Sketcher.Constraint("DistanceY", 13, 1, 13, 2, 17.0))
sketch13.addConstraint(Sketcher.Constraint("DistanceY", 23, 1, 23, 2, 37.0))
sketch13.addConstraint(Sketcher.Constraint("DistanceX", 21, 3, 20, 3, 80.0))
sketch13.addConstraint(Sketcher.Constraint("DistanceX", 0, 2, 21, 3, 20.0))
sketch13.addConstraint(Sketcher.Constraint("DistanceY", 0, 2, 21, 3, 83.0))
sketch13.addConstraint(Sketcher.Constraint("DistanceX", 14, 2, 10, 2, 5.0))
sketch13.addConstraint(Sketcher.Constraint("DistanceX", 18, 2, 13, 2, 29.0))
sketch13.addConstraint(Sketcher.Constraint("DistanceY", 15, 2, 22, 2, 4.0))
sketch13.addConstraint(Sketcher.Constraint("DistanceX", 0, 2, 0, 1, 77.875691))
sketch13.addConstraint(Sketcher.Constraint("DistanceX", 12, 2, 12, 1, 13.116806))
sketch13.addConstraint(Sketcher.Constraint("DistanceX", 16, 2, 16, 1, 77.081147))
sketch13.addConstraint(Sketcher.Constraint("DistanceX", 22, 1, 22, 2, 78.001078))
sketch13.addConstraint(Sketcher.Constraint("DistanceX", -1, 1, 20, 3, 108.741769))
sketch13.addConstraint(Sketcher.Constraint("DistanceY", -1, 1, 20, 3, 115.052702))
pad10 = doc.addObject("PartDesign::Pad", "Pad009")
body.addObject(pad10)
pad10.Profile = sketch13
pad10.Length = 5
pad10.Reversed = True
doc.recompute()

fillet = doc.addObject("PartDesign::Fillet", "Fillet")
body.addObject(fillet)
fillet.Base = (pad10, edges_at(pad10, [
    (8.742, 107.001, 71.053),
    (16.242, 107.001, 110.053),
    (68.742, 107.001, 110.053),
    (121.242, 107.001, 110.053),
    (128.738, 107.001, 71.053),
    (122.176, 107.001, 32.053),
    (47.68, 107.001, 32.053),
]))
fillet.Radius = 1

# Sketch on XZ plane
sketch14 = doc.addObject("Sketcher::SketchObject", "Sketch013")
body.addObject(sketch14)
sketch14.AttachmentSupport = (doc.XZ_Plane, [""])
sketch14.MapMode = "FlatFace"
sketch14.AttachmentOffset = App.Placement(Vector(0, 0, -57.101426), App.Rotation())
sketch14.addGeometry(Part.LineSegment(Vector(124, 37, 0), Vector(124, 49, 0)), False)
sketch14.addGeometry(Part.LineSegment(Vector(124, 49, 0), Vector(47, 49, 0)), False)
sketch14.addGeometry(Part.LineSegment(Vector(47, 49, 0), Vector(47, 37, 0)), False)
sketch14.addGeometry(Part.LineSegment(Vector(47, 37, 0), Vector(124, 37, 0)), False)
sketch14.addConstraint(Sketcher.Constraint("Coincident", 0, 2, 1, 1))
sketch14.addConstraint(Sketcher.Constraint("Coincident", 1, 2, 2, 1))
sketch14.addConstraint(Sketcher.Constraint("Coincident", 2, 2, 3, 1))
sketch14.addConstraint(Sketcher.Constraint("Coincident", 3, 2, 0, 1))
sketch14.addConstraint(Sketcher.Constraint("Vertical", 0))
sketch14.addConstraint(Sketcher.Constraint("Horizontal", 1))
sketch14.addConstraint(Sketcher.Constraint("Vertical", 2))
sketch14.addConstraint(Sketcher.Constraint("Horizontal", 3))
sketch14.addConstraint(Sketcher.Constraint("DistanceY", 0, 1, 0, 2, 12.0))
sketch14.addConstraint(Sketcher.Constraint("DistanceX", 1, 2, 1, 1, 77.124309))
sketch14.addConstraint(Sketcher.Constraint("DistanceX", -1, 1, 0, 2, 123.741769))
sketch14.addConstraint(Sketcher.Constraint("DistanceY", -1, 1, 0, 2, 49.052702))
pocket4 = doc.addObject("PartDesign::Pocket", "Pocket003")
body.addObject(pocket4)
pocket4.Profile = sketch14
pocket4.Length = 15

# Sketch on XZ plane
sketch15 = doc.addObject("Sketcher::SketchObject", "Sketch014")
body.addObject(sketch15)
sketch15.AttachmentSupport = (doc.XZ_Plane, [""])
sketch15.MapMode = "FlatFace"
sketch15.AttachmentOffset = App.Placement(Vector(0, 0, -67.001426), App.Rotation())
sketch15.addGeometry(Part.LineSegment(Vector(128.7, 59.1, 0), Vector(123.7, 59.1, 0)), False)
sketch15.addGeometry(Part.LineSegment(Vector(123.7, 59.1, 0), Vector(123.7, 37.1, 0)), False)
sketch15.addGeometry(Part.LineSegment(Vector(123.7, 37.1, 0), Vector(13.7, 37.1, 0)), False)
sketch15.addGeometry(Part.LineSegment(Vector(13.7, 37.1, 0), Vector(13.7, 59.1, 0)), False)
sketch15.addGeometry(Part.LineSegment(Vector(13.7, 59.1, 0), Vector(8.7, 59.1, 0)), False)
sketch15.addGeometry(Part.LineSegment(Vector(8.7, 59.1, 0), Vector(8.7, 32.1, 0)), False)
sketch15.addGeometry(Part.LineSegment(Vector(8.7, 32.1, 0), Vector(23.7, 32.1, 0)), False)
sketch15.addGeometry(Part.LineSegment(Vector(23.7, 32.1, 0), Vector(23.7, 22.1, 0)), False)
sketch15.addGeometry(Part.LineSegment(Vector(23.7, 22.1, 0), Vector(33.7, 22.1, 0)), False)
sketch15.addGeometry(Part.LineSegment(Vector(33.7, 22.1, 0), Vector(33.7, 32.1, 0)), False)
sketch15.addGeometry(Part.LineSegment(Vector(33.7, 32.1, 0), Vector(103.7, 32.1, 0)), False)
sketch15.addGeometry(Part.LineSegment(Vector(103.7, 32.1, 0), Vector(103.7, 22.1, 0)), False)
sketch15.addGeometry(Part.LineSegment(Vector(103.7, 22.1, 0), Vector(113.7, 22.1, 0)), False)
sketch15.addGeometry(Part.LineSegment(Vector(113.7, 22.1, 0), Vector(113.7, 32.1, 0)), False)
sketch15.addGeometry(Part.LineSegment(Vector(113.7, 32.1, 0), Vector(128.7, 32.1, 0)), False)
sketch15.addGeometry(Part.LineSegment(Vector(128.7, 32.1, 0), Vector(128.7, 59.1, 0)), False)
sketch15.addGeometry(Part.Circle(Vector(108.7, 27.1, 0), Vector(0, 0, 1), 2.1), False)
sketch15.addGeometry(Part.Circle(Vector(28.7, 27.1, 0), Vector(0, 0, 1), 2.1), False)
sketch15.addConstraint(Sketcher.Constraint("Coincident", 0, 2, 1, 1))
sketch15.addConstraint(Sketcher.Constraint("Coincident", 1, 2, 2, 1))
sketch15.addConstraint(Sketcher.Constraint("Coincident", 2, 2, 3, 1))
sketch15.addConstraint(Sketcher.Constraint("Coincident", 3, 2, 4, 1))
sketch15.addConstraint(Sketcher.Constraint("Coincident", 4, 2, 5, 1))
sketch15.addConstraint(Sketcher.Constraint("Coincident", 5, 2, 6, 1))
sketch15.addConstraint(Sketcher.Constraint("Coincident", 6, 2, 7, 1))
sketch15.addConstraint(Sketcher.Constraint("Coincident", 7, 2, 8, 1))
sketch15.addConstraint(Sketcher.Constraint("Coincident", 8, 2, 9, 1))
sketch15.addConstraint(Sketcher.Constraint("Coincident", 9, 2, 10, 1))
sketch15.addConstraint(Sketcher.Constraint("Coincident", 10, 2, 11, 1))
sketch15.addConstraint(Sketcher.Constraint("Coincident", 11, 2, 12, 1))
sketch15.addConstraint(Sketcher.Constraint("Coincident", 12, 2, 13, 1))
sketch15.addConstraint(Sketcher.Constraint("Coincident", 13, 2, 14, 1))
sketch15.addConstraint(Sketcher.Constraint("Coincident", 14, 2, 15, 1))
sketch15.addConstraint(Sketcher.Constraint("Coincident", 15, 2, 0, 1))
sketch15.addConstraint(Sketcher.Constraint("Horizontal", 0))
sketch15.addConstraint(Sketcher.Constraint("Vertical", 1))
sketch15.addConstraint(Sketcher.Constraint("Horizontal", 2))
sketch15.addConstraint(Sketcher.Constraint("Vertical", 3))
sketch15.addConstraint(Sketcher.Constraint("Horizontal", 4))
sketch15.addConstraint(Sketcher.Constraint("Vertical", 5))
sketch15.addConstraint(Sketcher.Constraint("Horizontal", 6))
sketch15.addConstraint(Sketcher.Constraint("Vertical", 7))
sketch15.addConstraint(Sketcher.Constraint("Horizontal", 8))
sketch15.addConstraint(Sketcher.Constraint("Vertical", 9))
sketch15.addConstraint(Sketcher.Constraint("Horizontal", 10))
sketch15.addConstraint(Sketcher.Constraint("Vertical", 11))
sketch15.addConstraint(Sketcher.Constraint("Horizontal", 12))
sketch15.addConstraint(Sketcher.Constraint("Vertical", 13))
sketch15.addConstraint(Sketcher.Constraint("Horizontal", 14))
sketch15.addConstraint(Sketcher.Constraint("Vertical", 15))
sketch15.addConstraint(Sketcher.Constraint("Equal", 16, 17))
sketch15.addConstraint(Sketcher.Constraint("Horizontal", 16, 3, 17, 3))
sketch15.addConstraint(Sketcher.Constraint("Horizontal", 0, 2, 3, 2))
sketch15.addConstraint(Sketcher.Constraint("Horizontal", 6, 2, 9, 2))
sketch15.addConstraint(Sketcher.Constraint("Horizontal", 8, 2, 11, 2))
sketch15.addConstraint(Sketcher.Constraint("Horizontal", 10, 2, 13, 2))
sketch15.addConstraint(Sketcher.Constraint("Equal", 0, 4))
sketch15.addConstraint(Sketcher.Constraint("Equal", 8, 12))
sketch15.addConstraint(Sketcher.Constraint("Equal", 6, 14))
sketch15.addConstraint(Sketcher.Constraint("Equal", 12, 7))
sketch15.addConstraint(Sketcher.Constraint("Diameter", 16, 4.2))
sketch15.addConstraint(Sketcher.Constraint("DistanceX", 0, 2, 0, 1, 5.0))
sketch15.addConstraint(Sketcher.Constraint("DistanceX", 2, 2, 2, 1, 110.0))
sketch15.addConstraint(Sketcher.Constraint("DistanceX", 6, 1, 6, 2, 15.0))
sketch15.addConstraint(Sketcher.Constraint("DistanceX", 8, 1, 8, 2, 10.0))
sketch15.addConstraint(Sketcher.Constraint("DistanceY", 1, 2, 1, 1, 22.0))
sketch15.addConstraint(Sketcher.Constraint("DistanceY", 5, 2, 5, 1, 27.0))
sketch15.addConstraint(Sketcher.Constraint("DistanceX", 17, 3, 16, 3, 80.0))
sketch15.addConstraint(Sketcher.Constraint("DistanceX", 16, 3, 0, 2, 15.0))
sketch15.addConstraint(Sketcher.Constraint("DistanceY", 16, 3, 0, 2, 32.0))
sketch15.addConstraint(Sketcher.Constraint("DistanceX", -1, 1, 16, 3, 108.741769))
sketch15.addConstraint(Sketcher.Constraint("DistanceY", -1, 1, 16, 3, 27.052702))
pad11 = doc.addObject("PartDesign::Pad", "Pad010")
body.addObject(pad11)
pad11.Profile = sketch15
pad11.Length = 5
pad11.Reversed = True

# Sketch on XY plane
sketch16 = doc.addObject("Sketcher::SketchObject", "Sketch015")
body.addObject(sketch16)
sketch16.AttachmentSupport = (doc.XY_Plane, [""])
sketch16.MapMode = "FlatFace"
sketch16.AttachmentOffset = App.Placement(Vector(0, 0, 59.052702), App.Rotation())
sketch16.addGeometry(Part.LineSegment(Vector(13.7, 102, 0), Vector(8.7, 102, 0)), False)
sketch16.addGeometry(Part.LineSegment(Vector(8.7, 102, 0), Vector(8.7, 67, 0)), False)
sketch16.addGeometry(Part.LineSegment(Vector(8.7, 67, 0), Vector(13.7, 67, 0)), False)
sketch16.addGeometry(Part.LineSegment(Vector(13.7, 67, 0), Vector(13.7, 102, 0)), False)
sketch16.addGeometry(Part.LineSegment(Vector(123.7, 102, 0), Vector(123.7, 67, 0)), False)
sketch16.addGeometry(Part.LineSegment(Vector(123.7, 67, 0), Vector(128.7, 67, 0)), False)
sketch16.addGeometry(Part.LineSegment(Vector(128.7, 67, 0), Vector(128.7, 102, 0)), False)
sketch16.addGeometry(Part.LineSegment(Vector(128.7, 102, 0), Vector(123.7, 102, 0)), False)
sketch16.addConstraint(Sketcher.Constraint("Coincident", 0, 2, 1, 1))
sketch16.addConstraint(Sketcher.Constraint("Coincident", 1, 2, 2, 1))
sketch16.addConstraint(Sketcher.Constraint("Coincident", 2, 2, 3, 1))
sketch16.addConstraint(Sketcher.Constraint("Coincident", 3, 2, 0, 1))
sketch16.addConstraint(Sketcher.Constraint("Coincident", 4, 2, 5, 1))
sketch16.addConstraint(Sketcher.Constraint("Coincident", 5, 2, 6, 1))
sketch16.addConstraint(Sketcher.Constraint("Coincident", 6, 2, 7, 1))
sketch16.addConstraint(Sketcher.Constraint("Coincident", 7, 2, 4, 1))
sketch16.addConstraint(Sketcher.Constraint("Horizontal", 0))
sketch16.addConstraint(Sketcher.Constraint("Horizontal", 2))
sketch16.addConstraint(Sketcher.Constraint("Vertical", 3))
sketch16.addConstraint(Sketcher.Constraint("Vertical", 4))
sketch16.addConstraint(Sketcher.Constraint("Horizontal", 5))
sketch16.addConstraint(Sketcher.Constraint("Vertical", 6))
sketch16.addConstraint(Sketcher.Constraint("Horizontal", 7))
sketch16.addConstraint(Sketcher.Constraint("Horizontal", 2, 2, 4, 2))
sketch16.addConstraint(Sketcher.Constraint("Horizontal", 3, 2, 6, 2))
sketch16.addConstraint(Sketcher.Constraint("Equal", 2, 5))
sketch16.addConstraint(Sketcher.Constraint("DistanceX", 2, 1, 2, 2, 5.0))
sketch16.addConstraint(Sketcher.Constraint("DistanceY", 3, 1, 3, 2, 35.0))
sketch16.addConstraint(Sketcher.Constraint("DistanceX", 2, 2, 4, 2, 110.0))
sketch16.addConstraint(Sketcher.Constraint("DistanceX", 0, 2, 0, 1, 4.999606))
sketch16.addConstraint(Sketcher.Constraint("DistanceX", -1, 1, 1, 2, 8.741769))
sketch16.addConstraint(Sketcher.Constraint("DistanceY", -1, 1, 0, 2, 102.001426))
pad12 = doc.addObject("PartDesign::Pad", "Pad011")
body.addObject(pad12)
pad12.Profile = sketch16
pad12.Length = 5

doc.recompute()
